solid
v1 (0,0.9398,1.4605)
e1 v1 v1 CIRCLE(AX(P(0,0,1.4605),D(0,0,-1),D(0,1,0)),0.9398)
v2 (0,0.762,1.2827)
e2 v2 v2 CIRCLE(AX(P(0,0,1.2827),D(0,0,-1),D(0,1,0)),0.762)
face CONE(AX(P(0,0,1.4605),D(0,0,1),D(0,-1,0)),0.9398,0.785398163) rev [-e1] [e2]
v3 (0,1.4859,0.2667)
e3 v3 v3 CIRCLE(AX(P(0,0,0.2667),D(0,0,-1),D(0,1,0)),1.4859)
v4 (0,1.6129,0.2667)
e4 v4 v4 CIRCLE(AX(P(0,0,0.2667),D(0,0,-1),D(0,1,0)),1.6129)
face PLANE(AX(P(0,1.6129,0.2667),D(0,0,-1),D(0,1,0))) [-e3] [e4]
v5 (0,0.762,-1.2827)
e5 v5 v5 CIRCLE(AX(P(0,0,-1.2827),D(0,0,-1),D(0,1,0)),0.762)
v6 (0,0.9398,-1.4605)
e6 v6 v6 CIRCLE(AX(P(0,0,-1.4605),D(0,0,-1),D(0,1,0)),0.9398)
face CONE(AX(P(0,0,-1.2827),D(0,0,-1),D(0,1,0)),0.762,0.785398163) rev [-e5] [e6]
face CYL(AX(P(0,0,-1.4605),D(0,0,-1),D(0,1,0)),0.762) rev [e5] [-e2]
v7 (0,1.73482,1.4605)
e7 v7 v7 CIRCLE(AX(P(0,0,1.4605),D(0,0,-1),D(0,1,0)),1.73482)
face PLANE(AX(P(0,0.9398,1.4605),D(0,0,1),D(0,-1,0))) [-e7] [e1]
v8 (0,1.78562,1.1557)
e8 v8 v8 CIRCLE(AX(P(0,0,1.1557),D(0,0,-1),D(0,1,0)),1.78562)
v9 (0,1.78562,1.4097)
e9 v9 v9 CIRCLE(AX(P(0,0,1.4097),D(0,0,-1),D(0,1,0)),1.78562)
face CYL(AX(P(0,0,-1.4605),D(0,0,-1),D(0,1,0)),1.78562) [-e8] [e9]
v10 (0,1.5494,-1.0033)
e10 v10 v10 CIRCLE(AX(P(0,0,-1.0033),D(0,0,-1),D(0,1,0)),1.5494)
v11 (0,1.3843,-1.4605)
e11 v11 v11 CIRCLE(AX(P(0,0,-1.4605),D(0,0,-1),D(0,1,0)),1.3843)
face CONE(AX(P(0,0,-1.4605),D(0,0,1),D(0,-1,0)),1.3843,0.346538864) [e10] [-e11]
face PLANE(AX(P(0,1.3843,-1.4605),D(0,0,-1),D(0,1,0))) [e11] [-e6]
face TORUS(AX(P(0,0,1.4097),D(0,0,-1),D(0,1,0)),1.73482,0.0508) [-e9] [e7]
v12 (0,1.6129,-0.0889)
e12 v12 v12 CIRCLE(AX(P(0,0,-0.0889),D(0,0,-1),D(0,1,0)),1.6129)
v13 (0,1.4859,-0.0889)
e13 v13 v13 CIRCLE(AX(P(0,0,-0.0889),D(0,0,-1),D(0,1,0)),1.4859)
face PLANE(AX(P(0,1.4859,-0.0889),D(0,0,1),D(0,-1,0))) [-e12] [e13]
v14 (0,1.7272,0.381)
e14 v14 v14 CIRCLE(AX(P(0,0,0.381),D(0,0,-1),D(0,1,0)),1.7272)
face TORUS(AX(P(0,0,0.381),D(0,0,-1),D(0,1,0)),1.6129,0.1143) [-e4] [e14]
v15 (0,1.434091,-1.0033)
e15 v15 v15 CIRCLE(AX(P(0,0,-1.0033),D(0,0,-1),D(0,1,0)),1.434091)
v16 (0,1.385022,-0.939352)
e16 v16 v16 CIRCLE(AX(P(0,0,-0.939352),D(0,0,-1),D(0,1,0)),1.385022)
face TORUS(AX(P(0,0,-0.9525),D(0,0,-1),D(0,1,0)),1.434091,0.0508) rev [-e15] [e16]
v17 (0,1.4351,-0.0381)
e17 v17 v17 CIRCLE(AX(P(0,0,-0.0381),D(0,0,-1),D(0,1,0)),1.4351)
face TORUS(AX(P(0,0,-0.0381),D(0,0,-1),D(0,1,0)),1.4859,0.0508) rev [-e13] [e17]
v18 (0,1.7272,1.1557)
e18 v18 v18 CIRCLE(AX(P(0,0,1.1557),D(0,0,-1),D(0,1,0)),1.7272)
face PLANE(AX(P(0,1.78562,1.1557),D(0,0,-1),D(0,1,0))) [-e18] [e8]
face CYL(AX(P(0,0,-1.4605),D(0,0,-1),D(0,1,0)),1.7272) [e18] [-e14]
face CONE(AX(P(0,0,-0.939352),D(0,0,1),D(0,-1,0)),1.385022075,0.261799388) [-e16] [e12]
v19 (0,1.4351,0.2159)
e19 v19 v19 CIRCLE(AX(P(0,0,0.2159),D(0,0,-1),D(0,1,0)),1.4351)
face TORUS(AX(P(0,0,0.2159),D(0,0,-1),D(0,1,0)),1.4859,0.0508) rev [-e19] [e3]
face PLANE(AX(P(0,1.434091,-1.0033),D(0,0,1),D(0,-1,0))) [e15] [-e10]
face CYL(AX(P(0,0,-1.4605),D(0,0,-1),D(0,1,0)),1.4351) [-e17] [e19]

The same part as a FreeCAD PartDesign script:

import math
import FreeCAD as App
import Part
import Sketcher
from FreeCAD import Vector
Q = App.Units.Quantity

doc = App.newDocument("Part")
body = doc.addObject("PartDesign::Body", "Body")

# Sketch on YZ plane
sketch1 = body.newObject("Sketcher::SketchObject", "Sketch")
sketch1.AttachmentSupport = (doc.getObject("YZ_Plane"), [""])
sketch1.MapMode = "FlatFace"
sketch1.addGeometry([
    Part.LineSegment(Vector(1.73, 1.46, 0), Vector(0.94, 1.46, 0)),  # 0
    Part.LineSegment(Vector(0.94, 1.46, 0), Vector(0.76, 1.28, 0)),  # 1
    Part.LineSegment(Vector(0.76, 1.28, 0), Vector(0.76, -1.28, 0)),  # 2
    Part.LineSegment(Vector(0.76, -1.28, 0), Vector(0.94, -1.46, 0)),  # 3
    Part.LineSegment(Vector(0.94, -1.46, 0), Vector(1.38, -1.46, 0)),  # 4
    Part.LineSegment(Vector(1.38, -1.46, 0), Vector(1.55, -1, 0)),  # 5
    Part.LineSegment(Vector(1.55, -1, 0), Vector(1.43, -1, 0)),  # 6
    Part.ArcOfCircle(Part.Circle(Vector(1.43, -0.95, 0), Vector(0, 0, 1), 0.05), math.radians(165), math.radians(270)),  # 7
    Part.LineSegment(Vector(1.39, -0.94, 0), Vector(1.61, -0.09, 0)),  # 8
    Part.LineSegment(Vector(1.61, -0.09, 0), Vector(1.49, -0.09, 0)),  # 9
    Part.ArcOfCircle(Part.Circle(Vector(1.49, -0.04, 0), Vector(0, 0, 1), 0.05), math.radians(-180), math.radians(-90)),  # 10
    Part.LineSegment(Vector(1.44, -0.04, 0), Vector(1.44, 0.22, 0)),  # 11
    Part.ArcOfCircle(Part.Circle(Vector(1.49, 0.22, 0), Vector(0, 0, 1), 0.05), math.radians(90), math.radians(180)),  # 12
    Part.LineSegment(Vector(1.49, 0.27, 0), Vector(1.61, 0.27, 0)),  # 13
    Part.ArcOfCircle(Part.Circle(Vector(1.61, 0.38, 0), Vector(0, 0, 1), 0.11), math.radians(-90), math.radians(0)),  # 14
    Part.LineSegment(Vector(1.73, 0.38, 0), Vector(1.73, 1.16, 0)),  # 15
    Part.LineSegment(Vector(1.73, 1.16, 0), Vector(1.79, 1.16, 0)),  # 16
    Part.LineSegment(Vector(1.79, 1.16, 0), Vector(1.79, 1.41, 0)),  # 17
    Part.ArcOfCircle(Part.Circle(Vector(1.73, 1.41, 0), Vector(0, 0, 1), 0.05), math.radians(0), math.radians(90)),  # 18
], False)
sketch1.addConstraint([
    Sketcher.Constraint("Coincident", 0, 2, 1, 1),
    Sketcher.Constraint("Coincident", 1, 2, 2, 1),
    Sketcher.Constraint("Coincident", 2, 2, 3, 1),
    Sketcher.Constraint("Coincident", 3, 2, 4, 1),
    Sketcher.Constraint("Coincident", 4, 2, 5, 1),
    Sketcher.Constraint("Coincident", 5, 2, 6, 1),
    Sketcher.Constraint("Tangent", 6, 2, 7, 2),
    Sketcher.Constraint("Tangent", 7, 1, 8, 1),
    Sketcher.Constraint("Coincident", 8, 2, 9, 1),
    Sketcher.Constraint("Tangent", 9, 2, 10, 2),
    Sketcher.Constraint("Tangent", 10, 1, 11, 1),
    Sketcher.Constraint("Tangent", 11, 2, 12, 2),
    Sketcher.Constraint("Tangent", 12, 1, 13, 1),
    Sketcher.Constraint("Tangent", 13, 2, 14, 1),
    Sketcher.Constraint("Tangent", 14, 2, 15, 1),
    Sketcher.Constraint("Coincident", 15, 2, 16, 1),
    Sketcher.Constraint("Coincident", 16, 2, 17, 1),
    Sketcher.Constraint("Tangent", 17, 2, 18, 1),
    Sketcher.Constraint("Tangent", 18, 2, 0, 1),
    Sketcher.Constraint("Horizontal", 0),
    Sketcher.Constraint("Vertical", 2),
    Sketcher.Constraint("Horizontal", 4),
    Sketcher.Constraint("Horizontal", 6),
    Sketcher.Constraint("Horizontal", 9),
    Sketcher.Constraint("Vertical", 11),
    Sketcher.Constraint("Horizontal", 13),
    Sketcher.Constraint("Vertical", 15),
    Sketcher.Constraint("Horizontal", 16),
    Sketcher.Constraint("Vertical", 17),
    Sketcher.Constraint("Equal", 7, 10),
    Sketcher.Constraint("Equal", 10, 12),
    Sketcher.Constraint("Equal", 12, 18),
    Sketcher.Constraint("Symmetric", 0, 2, 3, 2, -1),
    Sketcher.Constraint("Perpendicular", 1, 3),
    Sketcher.Constraint("Vertical", 14, 3, 8, 2),
    Sketcher.Constraint("Equal", 11, 17),
    Sketcher.Constraint("Equal", 1, 3),
    Sketcher.Constraint("Angle", 8, Q("75 deg")),
    Sketcher.Constraint("Radius", 7, Q("0.002 in")),
    Sketcher.Constraint("DistanceY", 11, 1, 11, 2, Q("0.01 in")),
    Sketcher.Constraint("Radius", 14, Q("0.0045 in")),
    Sketcher.Constraint("DistanceX", 9, 2, 9, 1, Q("0.005 in")),
    Sketcher.Constraint("DistanceY", 2, 2, 2, 1, Q("0.101 in")),
    Sketcher.Constraint("DistanceX", -1, 1, 1, 2, Q("0.03 in")),
    Sketcher.Constraint("DistanceY", 3, 2, 7, 3, Q("0.02 in")),
    Sketcher.Constraint("DistanceX", 0, 2, 0, 1, Q("0.0313 in")),
    Sketcher.Constraint("DistanceX", 4, 1, 4, 2, Q("0.0175 in")),
    Sketcher.Constraint("DistanceX", 16, 1, 16, 2, Q("0.0023 in")),
    Sketcher.Constraint("DistanceY", 15, 1, 15, 2, Q("0.0305 in")),
    Sketcher.Constraint("DistanceY", -1, 1, 14, 3, Q("0.015 in")),
    Sketcher.Constraint("DistanceX", -1, 1, 5, 2, Q("0.061 in")),
])
revolution = body.newObject("PartDesign::Revolution", "Revolution")
revolution.Profile = sketch1
revolution.ReferenceAxis = (sketch1, ["V_Axis"])
revolution.Angle = 360

doc.recompute()
